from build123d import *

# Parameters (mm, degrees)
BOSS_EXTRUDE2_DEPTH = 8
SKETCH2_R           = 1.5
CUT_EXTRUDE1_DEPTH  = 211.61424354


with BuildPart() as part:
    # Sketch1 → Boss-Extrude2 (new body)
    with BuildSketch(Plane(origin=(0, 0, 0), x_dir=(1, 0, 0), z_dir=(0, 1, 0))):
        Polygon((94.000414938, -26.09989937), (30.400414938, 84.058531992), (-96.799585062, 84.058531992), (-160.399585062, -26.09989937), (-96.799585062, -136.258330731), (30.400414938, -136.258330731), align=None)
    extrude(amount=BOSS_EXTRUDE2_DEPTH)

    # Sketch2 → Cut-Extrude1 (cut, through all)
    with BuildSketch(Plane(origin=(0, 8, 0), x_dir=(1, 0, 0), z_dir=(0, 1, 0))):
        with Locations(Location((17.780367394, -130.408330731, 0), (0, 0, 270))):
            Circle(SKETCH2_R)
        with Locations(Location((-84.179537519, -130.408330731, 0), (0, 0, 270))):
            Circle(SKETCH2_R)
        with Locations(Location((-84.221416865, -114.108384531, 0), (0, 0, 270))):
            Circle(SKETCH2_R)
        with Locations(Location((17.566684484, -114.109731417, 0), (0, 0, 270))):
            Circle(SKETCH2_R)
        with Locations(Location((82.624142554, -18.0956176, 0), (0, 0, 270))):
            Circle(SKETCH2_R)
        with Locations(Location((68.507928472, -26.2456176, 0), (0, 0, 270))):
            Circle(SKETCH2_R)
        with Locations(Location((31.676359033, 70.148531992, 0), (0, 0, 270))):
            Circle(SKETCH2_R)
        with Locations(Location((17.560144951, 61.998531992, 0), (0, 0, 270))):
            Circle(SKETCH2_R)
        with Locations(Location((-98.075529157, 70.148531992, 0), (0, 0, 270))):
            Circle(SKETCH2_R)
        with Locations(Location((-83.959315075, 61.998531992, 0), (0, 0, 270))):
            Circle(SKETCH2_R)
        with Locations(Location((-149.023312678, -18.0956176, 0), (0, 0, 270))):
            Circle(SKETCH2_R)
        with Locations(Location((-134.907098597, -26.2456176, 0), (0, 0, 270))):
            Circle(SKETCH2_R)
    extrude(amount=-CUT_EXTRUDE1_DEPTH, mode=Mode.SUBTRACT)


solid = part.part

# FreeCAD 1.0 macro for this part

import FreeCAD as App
import Part
import Sketcher
from FreeCAD import Vector
Q = App.Units.Quantity


def add_polygon(sketch, points):
    """Adds a closed chain of lines whose ends are joined by coincident constraints."""
    first, n = sketch.GeometryCount, len(points)
    for a, b in zip(points, points[1:] + points[:1]):
        sketch.addGeometry(Part.LineSegment(App.Vector(*a, 0), App.Vector(*b, 0)), False)
    for i in range(n):
        sketch.addConstraint(Sketcher.Constraint("Coincident", first + i, 2, first + (i + 1) % n, 1))

doc = App.newDocument("Part")
body = doc.addObject("PartDesign::Body", "Body")

# Sketch on XZ plane
sketch1 = body.newObject("Sketcher::SketchObject", "Sketch")
sketch1.AttachmentSupport = (doc.getObject("XZ_Plane"), [""])
sketch1.MapMode = "FlatFace"
add_polygon(sketch1, [(94, 26), (30, -84), (-97, -84), (-160, 26), (-97, 136), (30, 136)])  # lines 0-5
sketch1.addConstraint([
    Sketcher.Constraint("Horizontal", 1),
    Sketcher.Constraint("Horizontal", 4),
    Sketcher.Constraint("Parallel", 0, 3),
    Sketcher.Constraint("Parallel", 2, 5),
    Sketcher.Constraint("Horizontal", 2, 2, 5, 2),
    Sketcher.Constraint("Vertical", 1, 2, 3, 2),
    Sketcher.Constraint("Vertical", 0, 2, 4, 2),
    Sketcher.Constraint("Angle", 0, Q("-120 deg")),
    Sketcher.Constraint("DistanceX", 1, 2, 1, 1, 127.2),
    Sketcher.Constraint("Distance", 0, 127.2),
    Sketcher.Constraint("DistanceY", -1, 1, 2, 2, 26.099899),
    Sketcher.Constraint("DistanceX", -1, 1, 0, 2, 30.400415),
])
pad1 = body.newObject("PartDesign::Pad", "Pad")
pad1.Profile = sketch1
pad1.Length = 8
pad1.Reversed = True

# Sketch on XZ plane
sketch2 = body.newObject("Sketcher::SketchObject", "Sketch001")
sketch2.AttachmentSupport = (doc.getObject("XZ_Plane"), [""])
sketch2.MapMode = "FlatFace"
sketch2.AttachmentOffset = App.Placement(Vector(0, 0, -8), App.Rotation())
sketch2.addGeometry([
    Part.Circle(Vector(17.8, 130.4, 0), Vector(0, 0, 1), 1.5),  # 0
    Part.Circle(Vector(-84.2, 130.4, 0), Vector(0, 0, 1), 1.5),  # 1
    Part.Circle(Vector(-84.2, 114.1, 0), Vector(0, 0, 1), 1.5),  # 2
    Part.Circle(Vector(17.6, 114.1, 0), Vector(0, 0, 1), 1.5),  # 3
    Part.Circle(Vector(82.6, 18.1, 0), Vector(0, 0, 1), 1.5),  # 4
    Part.Circle(Vector(68.5, 26.2, 0), Vector(0, 0, 1), 1.5),  # 5
    Part.Circle(Vector(31.7, -70.1, 0), Vector(0, 0, 1), 1.5),  # 6
    Part.Circle(Vector(17.6, -62, 0), Vector(0, 0, 1), 1.5),  # 7
    Part.Circle(Vector(-98.1, -70.1, 0), Vector(0, 0, 1), 1.5),  # 8
    Part.Circle(Vector(-84, -62, 0), Vector(0, 0, 1), 1.5),  # 9
    Part.Circle(Vector(-149, 18.1, 0), Vector(0, 0, 1), 1.5),  # 10
    Part.Circle(Vector(-134.9, 26.2, 0), Vector(0, 0, 1), 1.5),  # 11
], False)
sketch2.addConstraint([
    Sketcher.Constraint("Equal", 0, 1),
    Sketcher.Constraint("Equal", 1, 2),
    Sketcher.Constraint("Equal", 2, 3),
    Sketcher.Constraint("Equal", 3, 4),
    Sketcher.Constraint("Equal", 4, 5),
    Sketcher.Constraint("Equal", 5, 6),
    Sketcher.Constraint("Equal", 6, 7),
    Sketcher.Constraint("Equal", 7, 8),
    Sketcher.Constraint("Equal", 8, 9),
    Sketcher.Constraint("Equal", 9, 10),
    Sketcher.Constraint("Equal", 10, 11),
    Sketcher.Constraint("Horizontal", 0, 3, 1, 3),
    Sketcher.Constraint("Horizontal", 6, 3, 8, 3),
    Sketcher.Constraint("Horizontal", 7, 3, 9, 3),
    Sketcher.Constraint("Horizontal", 4, 3, 10, 3),
    Sketcher.Constraint("Horizontal", 5, 3, 11, 3),
    Sketcher.Constraint("Diameter", 0, 3.0),
    Sketcher.Constraint("DistanceY", 4, 3, 5, 3, 8.15),
    Sketcher.Constraint("DistanceY", 6, 3, 7, 3, 8.15),
    Sketcher.Constraint("DistanceX", 11, 3, -1, 1, 134.907099),
    Sketcher.Constraint("DistanceY", 3, 3, 0, 3, 16.298599),
    Sketcher.Constraint("DistanceX", 2, 3, 3, 3, 101.788101),
    Sketcher.Constraint("DistanceX", 2, 3, 9, 3, 0.262102),
    Sketcher.Constraint("DistanceY", -1, 1, 0, 3, 130.408331),
    Sketcher.Constraint("DistanceX", -1, 1, 5, 3, 68.507928),
    Sketcher.Constraint("DistanceX", -1, 1, 6, 3, 31.676359),
    Sketcher.Constraint("DistanceY", 6, 3, -1, 1, 70.148532),
    Sketcher.Constraint("DistanceX", 8, 3, -1, 1, 98.075529),
    Sketcher.Constraint("DistanceX", 2, 3, 1, 3, 0.041879),
    Sketcher.Constraint("DistanceX", 3, 3, 4, 3, 65.057458),
    Sketcher.Constraint("DistanceX", 0, 3, 5, 3, 50.727561),
    Sketcher.Constraint("DistanceY", 6, 3, 4, 3, 88.24415),
    Sketcher.Constraint("DistanceX", 7, 3, 3, 3, 0.00654),
    Sketcher.Constraint("DistanceX", 8, 3, 1, 3, 13.895992),
    Sketcher.Constraint("DistanceY", -1, 1, 2, 3, 114.108385),
    Sketcher.Constraint("DistanceX", 10, 3, -1, 1, 149.023313),
])
pocket1 = body.newObject("PartDesign::Pocket", "Pocket")
pocket1.Profile = sketch2
pocket1.Type = "ThroughAll"
pocket1.Reversed = True

doc.recompute()
